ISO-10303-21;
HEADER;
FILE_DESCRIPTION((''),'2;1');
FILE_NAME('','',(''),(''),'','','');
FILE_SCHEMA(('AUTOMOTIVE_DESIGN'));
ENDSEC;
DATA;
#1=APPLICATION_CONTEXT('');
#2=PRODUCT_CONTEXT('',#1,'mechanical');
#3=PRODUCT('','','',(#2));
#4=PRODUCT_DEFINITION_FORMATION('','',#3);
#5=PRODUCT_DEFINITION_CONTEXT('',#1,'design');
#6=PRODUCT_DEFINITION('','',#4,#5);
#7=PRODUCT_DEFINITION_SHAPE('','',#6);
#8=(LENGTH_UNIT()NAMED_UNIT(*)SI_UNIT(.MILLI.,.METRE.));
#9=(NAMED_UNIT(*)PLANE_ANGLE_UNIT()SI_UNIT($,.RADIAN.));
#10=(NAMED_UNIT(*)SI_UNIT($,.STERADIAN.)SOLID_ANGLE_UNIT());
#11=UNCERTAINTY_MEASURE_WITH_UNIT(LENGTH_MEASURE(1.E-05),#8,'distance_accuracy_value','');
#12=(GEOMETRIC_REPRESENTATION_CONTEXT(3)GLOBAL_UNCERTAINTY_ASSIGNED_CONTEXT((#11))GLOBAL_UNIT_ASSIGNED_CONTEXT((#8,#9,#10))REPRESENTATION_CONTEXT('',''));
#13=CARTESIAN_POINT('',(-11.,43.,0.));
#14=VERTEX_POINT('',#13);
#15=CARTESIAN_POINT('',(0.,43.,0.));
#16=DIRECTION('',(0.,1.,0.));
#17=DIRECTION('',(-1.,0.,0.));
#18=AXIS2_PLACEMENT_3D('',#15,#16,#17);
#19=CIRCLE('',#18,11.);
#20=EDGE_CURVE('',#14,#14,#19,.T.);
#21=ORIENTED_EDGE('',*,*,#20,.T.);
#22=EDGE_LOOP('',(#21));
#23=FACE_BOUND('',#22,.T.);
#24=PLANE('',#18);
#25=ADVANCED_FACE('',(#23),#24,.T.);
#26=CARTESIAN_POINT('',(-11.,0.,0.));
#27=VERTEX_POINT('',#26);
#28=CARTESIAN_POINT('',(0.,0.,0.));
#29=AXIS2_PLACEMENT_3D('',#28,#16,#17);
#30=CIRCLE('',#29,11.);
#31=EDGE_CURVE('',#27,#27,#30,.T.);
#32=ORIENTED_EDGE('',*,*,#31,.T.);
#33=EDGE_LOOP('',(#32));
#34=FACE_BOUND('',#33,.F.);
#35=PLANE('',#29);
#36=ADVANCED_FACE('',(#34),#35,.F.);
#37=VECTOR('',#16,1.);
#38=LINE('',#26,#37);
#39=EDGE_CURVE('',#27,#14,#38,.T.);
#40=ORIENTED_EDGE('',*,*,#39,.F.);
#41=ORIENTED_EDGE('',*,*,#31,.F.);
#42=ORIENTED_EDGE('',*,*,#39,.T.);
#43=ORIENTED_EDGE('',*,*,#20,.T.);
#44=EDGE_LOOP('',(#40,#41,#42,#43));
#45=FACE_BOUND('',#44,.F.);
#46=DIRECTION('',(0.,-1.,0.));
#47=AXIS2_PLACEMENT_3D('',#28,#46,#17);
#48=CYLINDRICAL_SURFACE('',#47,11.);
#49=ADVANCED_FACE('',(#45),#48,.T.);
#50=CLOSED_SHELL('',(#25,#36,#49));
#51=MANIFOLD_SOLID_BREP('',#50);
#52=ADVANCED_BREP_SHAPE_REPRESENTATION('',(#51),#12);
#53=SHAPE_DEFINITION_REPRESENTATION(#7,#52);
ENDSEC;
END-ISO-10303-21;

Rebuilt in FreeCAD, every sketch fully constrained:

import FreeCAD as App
import Part
import Sketcher

V = App.Vector
Q = App.Units.Quantity

doc = App.newDocument("Part")
body = doc.addObject("PartDesign::Body", "Body")

# Sketch on XZ plane
sketch1 = doc.addObject("Sketcher::SketchObject", "Sketch")
body.addObject(sketch1)
sketch1.AttachmentSupport = (doc.XZ_Plane, [""])
sketch1.MapMode = "FlatFace"
sketch1.addGeometry(Part.Circle(V(0, 0, 0), V(0, 0, 1), 11), False)
sketch1.addConstraint([
    Sketcher.Constraint("Coincident", 0, 3, -1, 1),
    Sketcher.Constraint("Diameter", 0, Q("22 mm")),
])
pad1 = doc.addObject("PartDesign::Pad", "Pad")
body.addObject(pad1)
pad1.Profile = sketch1
pad1.Length = 43
pad1.Reversed = True

doc.recompute()
